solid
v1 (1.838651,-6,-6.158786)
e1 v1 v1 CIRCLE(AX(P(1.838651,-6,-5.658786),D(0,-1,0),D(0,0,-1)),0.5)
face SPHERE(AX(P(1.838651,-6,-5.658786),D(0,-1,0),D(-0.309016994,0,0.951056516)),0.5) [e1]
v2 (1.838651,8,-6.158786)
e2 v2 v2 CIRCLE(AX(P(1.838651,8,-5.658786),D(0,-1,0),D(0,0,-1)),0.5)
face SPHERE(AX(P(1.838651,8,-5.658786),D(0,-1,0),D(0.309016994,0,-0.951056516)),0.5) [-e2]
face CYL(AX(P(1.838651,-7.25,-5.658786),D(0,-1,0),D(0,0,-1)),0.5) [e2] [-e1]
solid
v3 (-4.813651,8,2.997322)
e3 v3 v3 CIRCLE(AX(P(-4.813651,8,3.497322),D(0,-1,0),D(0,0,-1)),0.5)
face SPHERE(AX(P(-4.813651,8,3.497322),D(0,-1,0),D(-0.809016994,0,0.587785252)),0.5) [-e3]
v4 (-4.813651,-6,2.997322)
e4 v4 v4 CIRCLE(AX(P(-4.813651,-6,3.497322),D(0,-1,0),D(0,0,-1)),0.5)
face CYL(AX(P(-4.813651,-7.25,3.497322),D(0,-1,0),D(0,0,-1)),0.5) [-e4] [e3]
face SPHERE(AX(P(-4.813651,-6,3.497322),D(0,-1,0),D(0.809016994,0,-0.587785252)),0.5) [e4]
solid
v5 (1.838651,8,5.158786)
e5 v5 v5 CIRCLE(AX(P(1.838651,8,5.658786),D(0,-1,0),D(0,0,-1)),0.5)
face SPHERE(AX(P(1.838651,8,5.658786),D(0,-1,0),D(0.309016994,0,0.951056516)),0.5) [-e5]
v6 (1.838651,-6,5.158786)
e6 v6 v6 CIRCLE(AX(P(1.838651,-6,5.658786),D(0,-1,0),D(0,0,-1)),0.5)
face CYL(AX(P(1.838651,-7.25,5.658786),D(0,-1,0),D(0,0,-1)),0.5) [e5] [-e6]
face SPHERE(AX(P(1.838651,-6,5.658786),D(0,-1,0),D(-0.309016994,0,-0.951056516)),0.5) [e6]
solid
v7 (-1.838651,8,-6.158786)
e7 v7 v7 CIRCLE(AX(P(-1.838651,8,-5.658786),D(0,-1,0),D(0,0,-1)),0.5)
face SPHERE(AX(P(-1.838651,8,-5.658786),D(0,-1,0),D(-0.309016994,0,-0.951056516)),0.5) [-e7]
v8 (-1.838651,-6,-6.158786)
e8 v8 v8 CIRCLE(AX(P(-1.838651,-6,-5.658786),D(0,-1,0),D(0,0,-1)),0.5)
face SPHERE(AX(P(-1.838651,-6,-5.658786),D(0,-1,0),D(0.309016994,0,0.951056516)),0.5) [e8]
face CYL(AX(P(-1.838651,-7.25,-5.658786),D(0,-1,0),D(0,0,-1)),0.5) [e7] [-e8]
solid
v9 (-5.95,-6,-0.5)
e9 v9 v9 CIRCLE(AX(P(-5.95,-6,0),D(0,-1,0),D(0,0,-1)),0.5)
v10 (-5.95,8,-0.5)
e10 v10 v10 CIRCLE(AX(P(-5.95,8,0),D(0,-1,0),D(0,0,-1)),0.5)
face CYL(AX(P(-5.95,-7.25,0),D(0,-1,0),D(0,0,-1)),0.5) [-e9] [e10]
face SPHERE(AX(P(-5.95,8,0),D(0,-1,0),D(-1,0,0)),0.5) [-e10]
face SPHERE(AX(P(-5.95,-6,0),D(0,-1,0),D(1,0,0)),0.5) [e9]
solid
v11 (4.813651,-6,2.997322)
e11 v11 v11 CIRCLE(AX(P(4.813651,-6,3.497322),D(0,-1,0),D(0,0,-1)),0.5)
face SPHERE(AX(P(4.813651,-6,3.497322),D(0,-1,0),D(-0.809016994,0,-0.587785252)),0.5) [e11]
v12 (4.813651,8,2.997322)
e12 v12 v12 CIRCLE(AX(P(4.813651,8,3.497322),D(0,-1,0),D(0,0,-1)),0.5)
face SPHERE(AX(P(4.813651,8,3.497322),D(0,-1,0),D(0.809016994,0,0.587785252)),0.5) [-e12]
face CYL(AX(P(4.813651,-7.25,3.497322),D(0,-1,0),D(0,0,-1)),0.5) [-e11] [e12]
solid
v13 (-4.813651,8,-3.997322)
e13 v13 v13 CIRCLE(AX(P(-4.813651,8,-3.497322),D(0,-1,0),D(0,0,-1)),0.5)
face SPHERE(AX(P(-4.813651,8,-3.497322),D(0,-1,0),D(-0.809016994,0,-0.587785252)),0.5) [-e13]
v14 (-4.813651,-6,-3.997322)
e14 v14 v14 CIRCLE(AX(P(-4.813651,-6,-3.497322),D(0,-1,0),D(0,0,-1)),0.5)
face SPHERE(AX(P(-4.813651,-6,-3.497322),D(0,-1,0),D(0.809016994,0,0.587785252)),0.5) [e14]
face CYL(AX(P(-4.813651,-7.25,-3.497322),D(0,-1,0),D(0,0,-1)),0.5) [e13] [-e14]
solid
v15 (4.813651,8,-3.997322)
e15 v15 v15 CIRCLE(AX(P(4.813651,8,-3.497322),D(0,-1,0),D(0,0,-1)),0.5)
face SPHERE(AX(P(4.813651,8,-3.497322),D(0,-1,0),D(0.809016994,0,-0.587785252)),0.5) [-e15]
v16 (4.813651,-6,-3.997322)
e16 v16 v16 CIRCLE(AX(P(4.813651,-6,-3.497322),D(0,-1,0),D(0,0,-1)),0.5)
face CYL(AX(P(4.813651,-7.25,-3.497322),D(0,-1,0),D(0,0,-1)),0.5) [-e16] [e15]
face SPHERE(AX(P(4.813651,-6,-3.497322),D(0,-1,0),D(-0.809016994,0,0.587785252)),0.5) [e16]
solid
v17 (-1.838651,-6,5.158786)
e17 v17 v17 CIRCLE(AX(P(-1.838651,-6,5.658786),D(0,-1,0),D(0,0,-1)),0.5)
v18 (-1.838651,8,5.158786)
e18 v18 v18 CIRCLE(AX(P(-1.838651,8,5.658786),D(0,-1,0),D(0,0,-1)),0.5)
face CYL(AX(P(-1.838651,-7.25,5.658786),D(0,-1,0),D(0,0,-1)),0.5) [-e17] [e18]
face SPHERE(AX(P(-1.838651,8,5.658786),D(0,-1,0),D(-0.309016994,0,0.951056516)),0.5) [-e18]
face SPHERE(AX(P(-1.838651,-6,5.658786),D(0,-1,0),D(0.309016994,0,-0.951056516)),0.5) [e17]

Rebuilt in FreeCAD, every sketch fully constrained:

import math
import FreeCAD as App
import Part
import Sketcher

doc = App.newDocument("Part")
body = doc.addObject("PartDesign::Body", "Body")

# Sketch on an angled plane
sketch1 = body.newObject("Sketcher::SketchObject", "Sketch")
sketch1.Placement = App.Placement(App.Vector(0, 0, 0), App.Rotation(App.Vector(0.809016994, 0, -0.587785252), App.Vector(0, 0.999999999, 0), App.Vector(0.587785252, 0, 0.809016994), "ZXY"))
sketch1.addGeometry([
    Part.LineSegment(App.Vector(6.45, -6, 0), App.Vector(6.45, 8, 0)),
    Part.ArcOfCircle(Part.Circle(App.Vector(5.95, 8, 0), App.Vector(0, 0, 1), 0.5), math.radians(0), math.radians(90)),
    Part.LineSegment(App.Vector(5.95, 8.5, 0), App.Vector(5.95, -6.5, 0)),
    Part.ArcOfCircle(Part.Circle(App.Vector(5.95, -6, 0), App.Vector(0, 0, 1), 0.5), math.radians(-90), math.radians(0)),
], False)
sketch1.addGeometry(Part.LineSegment(App.Vector(5.95, -6.5, 0), App.Vector(5.95, 8.5, 0)), True)  # axis
sketch1.addConstraint([
    Sketcher.Constraint("Tangent", 0, 2, 1, 1),
    Sketcher.Constraint("Coincident", 1, 2, 2, 1),
    Sketcher.Constraint("Coincident", 2, 2, 3, 1),
    Sketcher.Constraint("Tangent", 3, 2, 0, 1),
    Sketcher.Constraint("Vertical", 0),
    Sketcher.Constraint("Vertical", 2),
    Sketcher.Constraint("Vertical", 4),
    Sketcher.Constraint("Coincident", 4, 1, 2, 2),
    Sketcher.Constraint("Equal", 1, 3),
    Sketcher.Constraint("Vertical", 3, 3, 1, 2),
    Sketcher.Constraint("Equal", 2, 4),
    Sketcher.Constraint("Radius", 1, 0.5),
    Sketcher.Constraint("DistanceY", 0, 1, 0, 2, 14.0),
    Sketcher.Constraint("DistanceY", -1, 1, 1, 3, 8.0),
    Sketcher.Constraint("DistanceX", -1, 1, 1, 3, 5.95),
])
revolution = body.newObject("PartDesign::Revolution", "Revolution")
revolution.Profile = sketch1
revolution.ReferenceAxis = (sketch1, ["Axis0"])
revolution.Angle = 360
body2 = doc.addObject("PartDesign::Body", "Body001")

# Sketch on an angled plane
sketch2 = body2.newObject("Sketcher::SketchObject", "Sketch001")
sketch2.Placement = App.Placement(App.Vector(0, 0, 0), App.Rotation(App.Vector(0.309016994, 0, -0.951056516), App.Vector(0, 0.999999999, 0), App.Vector(0.951056516, 0, 0.309016994), "ZXY"))
sketch2.addGeometry([
    Part.LineSegment(App.Vector(6.45, -6, 0), App.Vector(6.45, 8, 0)),
    Part.ArcOfCircle(Part.Circle(App.Vector(5.95, 8, 0), App.Vector(0, 0, 1), 0.5), math.radians(0), math.radians(90)),
    Part.LineSegment(App.Vector(5.95, 8.5, 0), App.Vector(5.95, -6.5, 0)),
    Part.ArcOfCircle(Part.Circle(App.Vector(5.95, -6, 0), App.Vector(0, 0, 1), 0.5), math.radians(-90), math.radians(0)),
], False)
sketch2.addGeometry(Part.LineSegment(App.Vector(5.95, -6.5, 0), App.Vector(5.95, 8.5, 0)), True)  # axis
sketch2.addConstraint([
    Sketcher.Constraint("Tangent", 0, 2, 1, 1),
    Sketcher.Constraint("Coincident", 1, 2, 2, 1),
    Sketcher.Constraint("Coincident", 2, 2, 3, 1),
    Sketcher.Constraint("Tangent", 3, 2, 0, 1),
    Sketcher.Constraint("Vertical", 0),
    Sketcher.Constraint("Vertical", 2),
    Sketcher.Constraint("Vertical", 4),
    Sketcher.Constraint("Coincident", 4, 1, 2, 2),
    Sketcher.Constraint("Equal", 1, 3),
    Sketcher.Constraint("Vertical", 3, 3, 1, 2),
    Sketcher.Constraint("Equal", 2, 4),
    Sketcher.Constraint("Radius", 1, 0.5),
    Sketcher.Constraint("DistanceY", 0, 1, 0, 2, 14.0),
    Sketcher.Constraint("DistanceY", -1, 1, 1, 3, 8.0),
    Sketcher.Constraint("DistanceX", -1, 1, 1, 3, 5.95),
])
revolution2 = body2.newObject("PartDesign::Revolution", "Revolution001")
revolution2.Profile = sketch2
revolution2.ReferenceAxis = (sketch2, ["Axis0"])
revolution2.Angle = 360
body3 = doc.addObject("PartDesign::Body", "Body002")

# Sketch on an angled plane
sketch3 = body3.newObject("Sketcher::SketchObject", "Sketch002")
sketch3.Placement = App.Placement(App.Vector(0, 0, 0), App.Rotation(App.Vector(-0.309016994, 0, -0.951056516), App.Vector(0, 0.999999999, 0), App.Vector(0.951056516, 0, -0.309016994), "ZXY"))
sketch3.addGeometry([
    Part.LineSegment(App.Vector(6.45, -6, 0), App.Vector(6.45, 8, 0)),
    Part.ArcOfCircle(Part.Circle(App.Vector(5.95, 8, 0), App.Vector(0, 0, 1), 0.5), math.radians(0), math.radians(90)),
    Part.LineSegment(App.Vector(5.95, 8.5, 0), App.Vector(5.95, -6.5, 0)),
    Part.ArcOfCircle(Part.Circle(App.Vector(5.95, -6, 0), App.Vector(0, 0, 1), 0.5), math.radians(-90), math.radians(0)),
], False)
sketch3.addGeometry(Part.LineSegment(App.Vector(5.95, -6.5, 0), App.Vector(5.95, 8.5, 0)), True)  # axis
sketch3.addConstraint([
    Sketcher.Constraint("Tangent", 0, 2, 1, 1),
    Sketcher.Constraint("Coincident", 1, 2, 2, 1),
    Sketcher.Constraint("Coincident", 2, 2, 3, 1),
    Sketcher.Constraint("Tangent", 3, 2, 0, 1),
    Sketcher.Constraint("Vertical", 0),
    Sketcher.Constraint("Vertical", 2),
    Sketcher.Constraint("Vertical", 4),
    Sketcher.Constraint("Coincident", 4, 1, 2, 2),
    Sketcher.Constraint("Equal", 1, 3),
    Sketcher.Constraint("Vertical", 3, 3, 1, 2),
    Sketcher.Constraint("Equal", 2, 4),
    Sketcher.Constraint("Radius", 1, 0.5),
    Sketcher.Constraint("DistanceY", 0, 1, 0, 2, 14.0),
    Sketcher.Constraint("DistanceY", -1, 1, 1, 3, 8.0),
    Sketcher.Constraint("DistanceX", -1, 1, 1, 3, 5.95),
])
revolution3 = body3.newObject("PartDesign::Revolution", "Revolution002")
revolution3.Profile = sketch3
revolution3.ReferenceAxis = (sketch3, ["Axis0"])
revolution3.Angle = 360
body4 = doc.addObject("PartDesign::Body", "Body003")

# Sketch on an angled plane
sketch4 = body4.newObject("Sketcher::SketchObject", "Sketch003")
sketch4.Placement = App.Placement(App.Vector(0, 0, 0), App.Rotation(App.Vector(-0.809016994, 0, -0.587785252), App.Vector(0, 0.999999999, 0), App.Vector(0.587785252, 0, -0.809016994), "ZXY"))
sketch4.addGeometry([
    Part.LineSegment(App.Vector(6.45, -6, 0), App.Vector(6.45, 8, 0)),
    Part.ArcOfCircle(Part.Circle(App.Vector(5.95, 8, 0), App.Vector(0, 0, 1), 0.5), math.radians(0), math.radians(90)),
    Part.LineSegment(App.Vector(5.95, 8.5, 0), App.Vector(5.95, -6.5, 0)),
    Part.ArcOfCircle(Part.Circle(App.Vector(5.95, -6, 0), App.Vector(0, 0, 1), 0.5), math.radians(-90), math.radians(0)),
], False)
sketch4.addGeometry(Part.LineSegment(App.Vector(5.95, -6.5, 0), App.Vector(5.95, 8.5, 0)), True)  # axis
sketch4.addConstraint([
    Sketcher.Constraint("Tangent", 0, 2, 1, 1),
    Sketcher.Constraint("Coincident", 1, 2, 2, 1),
    Sketcher.Constraint("Coincident", 2, 2, 3, 1),
    Sketcher.Constraint("Tangent", 3, 2, 0, 1),
    Sketcher.Constraint("Vertical", 0),
    Sketcher.Constraint("Vertical", 2),
    Sketcher.Constraint("Vertical", 4),
    Sketcher.Constraint("Coincident", 4, 1, 2, 2),
    Sketcher.Constraint("Equal", 1, 3),
    Sketcher.Constraint("Vertical", 3, 3, 1, 2),
    Sketcher.Constraint("Equal", 2, 4),
    Sketcher.Constraint("Radius", 1, 0.5),
    Sketcher.Constraint("DistanceY", 0, 1, 0, 2, 14.0),
    Sketcher.Constraint("DistanceY", -1, 1, 1, 3, 8.0),
    Sketcher.Constraint("DistanceX", -1, 1, 1, 3, 5.95),
])
revolution4 = body4.newObject("PartDesign::Revolution", "Revolution003")
revolution4.Profile = sketch4
revolution4.ReferenceAxis = (sketch4, ["Axis0"])
revolution4.Angle = 360
body5 = doc.addObject("PartDesign::Body", "Body004")

# Sketch on XY plane
sketch5 = body5.newObject("Sketcher::SketchObject", "Sketch004")
sketch5.AttachmentSupport = (doc.getObject("XY_Plane004"), [""])
sketch5.MapMode = "FlatFace"
sketch5.addGeometry([
    Part.LineSegment(App.Vector(-6.45, -6, 0), App.Vector(-6.45, 8, 0)),
    Part.ArcOfCircle(Part.Circle(App.Vector(-5.95, 8, 0), App.Vector(0, 0, 1), 0.5), math.radians(90), math.radians(180)),
    Part.LineSegment(App.Vector(-5.95, 8.5, 0), App.Vector(-5.95, -6.5, 0)),
    Part.ArcOfCircle(Part.Circle(App.Vector(-5.95, -6, 0), App.Vector(0, 0, 1), 0.5), math.radians(180), math.radians(270)),
], False)
sketch5.addGeometry(Part.LineSegment(App.Vector(-5.95, -6.5, 0), App.Vector(-5.95, 8.5, 0)), True)  # axis
sketch5.addConstraint([
    Sketcher.Constraint("Tangent", 0, 2, 1, 2),
    Sketcher.Constraint("Coincident", 1, 1, 2, 1),
    Sketcher.Constraint("Coincident", 2, 2, 3, 2),
    Sketcher.Constraint("Tangent", 3, 1, 0, 1),
    Sketcher.Constraint("Vertical", 0),
    Sketcher.Constraint("Vertical", 2),
    Sketcher.Constraint("Vertical", 4),
    Sketcher.Constraint("Coincident", 4, 1, 2, 2),
    Sketcher.Constraint("Equal", 1, 3),
    Sketcher.Constraint("Vertical", 3, 3, 1, 1),
    Sketcher.Constraint("Equal", 2, 4),
    Sketcher.Constraint("Radius", 1, 0.5),
    Sketcher.Constraint("DistanceY", 0, 1, 0, 2, 14.0),
    Sketcher.Constraint("DistanceY", -1, 1, 1, 3, 8.0),
    Sketcher.Constraint("DistanceX", 1, 3, -1, 1, 5.95),
])
revolution5 = body5.newObject("PartDesign::Revolution", "Revolution004")
revolution5.Profile = sketch5
revolution5.ReferenceAxis = (sketch5, ["Axis0"])
revolution5.Angle = 360
body6 = doc.addObject("PartDesign::Body", "Body005")

# Sketch on an angled plane
sketch6 = body6.newObject("Sketcher::SketchObject", "Sketch005")
sketch6.Placement = App.Placement(App.Vector(0, 0, 0), App.Rotation(App.Vector(-0.809016994, 0, 0.587785252), App.Vector(0, 0.999999999, 0), App.Vector(-0.587785252, 0, -0.809016994), "ZXY"))
sketch6.addGeometry([
    Part.LineSegment(App.Vector(6.45, -6, 0), App.Vector(6.45, 8, 0)),
    Part.ArcOfCircle(Part.Circle(App.Vector(5.95, 8, 0), App.Vector(0, 0, 1), 0.5), math.radians(0), math.radians(90)),
    Part.LineSegment(App.Vector(5.95, 8.5, 0), App.Vector(5.95, -6.5, 0)),
    Part.ArcOfCircle(Part.Circle(App.Vector(5.95, -6, 0), App.Vector(0, 0, 1), 0.5), math.radians(-90), math.radians(0)),
], False)
sketch6.addGeometry(Part.LineSegment(App.Vector(5.95, -6.5, 0), App.Vector(5.95, 8.5, 0)), True)  # axis
sketch6.addConstraint([
    Sketcher.Constraint("Tangent", 0, 2, 1, 1),
    Sketcher.Constraint("Coincident", 1, 2, 2, 1),
    Sketcher.Constraint("Coincident", 2, 2, 3, 1),
    Sketcher.Constraint("Tangent", 3, 2, 0, 1),
    Sketcher.Constraint("Vertical", 0),
    Sketcher.Constraint("Vertical", 2),
    Sketcher.Constraint("Vertical", 4),
    Sketcher.Constraint("Coincident", 4, 1, 2, 2),
    Sketcher.Constraint("Equal", 1, 3),
    Sketcher.Constraint("Vertical", 3, 3, 1, 2),
    Sketcher.Constraint("Equal", 2, 4),
    Sketcher.Constraint("Radius", 1, 0.5),
    Sketcher.Constraint("DistanceY", 0, 1, 0, 2, 14.0),
    Sketcher.Constraint("DistanceY", -1, 1, 1, 3, 8.0),
    Sketcher.Constraint("DistanceX", -1, 1, 1, 3, 5.95),
])
revolution6 = body6.newObject("PartDesign::Revolution", "Revolution005")
revolution6.Profile = sketch6
revolution6.ReferenceAxis = (sketch6, ["Axis0"])
revolution6.Angle = 360
body7 = doc.addObject("PartDesign::Body", "Body006")

# Sketch on an angled plane
sketch7 = body7.newObject("Sketcher::SketchObject", "Sketch006")
sketch7.Placement = App.Placement(App.Vector(0, 0, 0), App.Rotation(App.Vector(-0.309016994, 0, 0.951056516), App.Vector(0, 0.999999999, 0), App.Vector(-0.951056516, 0, -0.309016994), "ZXY"))
sketch7.addGeometry([
    Part.LineSegment(App.Vector(6.45, -6, 0), App.Vector(6.45, 8, 0)),
    Part.ArcOfCircle(Part.Circle(App.Vector(5.95, 8, 0), App.Vector(0, 0, 1), 0.5), math.radians(0), math.radians(90)),
    Part.LineSegment(App.Vector(5.95, 8.5, 0), App.Vector(5.95, -6.5, 0)),
    Part.ArcOfCircle(Part.Circle(App.Vector(5.95, -6, 0), App.Vector(0, 0, 1), 0.5), math.radians(-90), math.radians(0)),
], False)
sketch7.addGeometry(Part.LineSegment(App.Vector(5.95, -6.5, 0), App.Vector(5.95, 8.5, 0)), True)  # axis
sketch7.addConstraint([
    Sketcher.Constraint("Tangent", 0, 2, 1, 1),
    Sketcher.Constraint("Coincident", 1, 2, 2, 1),
    Sketcher.Constraint("Coincident", 2, 2, 3, 1),
    Sketcher.Constraint("Tangent", 3, 2, 0, 1),
    Sketcher.Constraint("Vertical", 0),
    Sketcher.Constraint("Vertical", 2),
    Sketcher.Constraint("Vertical", 4),
    Sketcher.Constraint("Coincident", 4, 1, 2, 2),
    Sketcher.Constraint("Equal", 1, 3),
    Sketcher.Constraint("Vertical", 3, 3, 1, 2),
    Sketcher.Constraint("Equal", 2, 4),
    Sketcher.Constraint("Radius", 1, 0.5),
    Sketcher.Constraint("DistanceY", 0, 1, 0, 2, 14.0),
    Sketcher.Constraint("DistanceY", -1, 1, 1, 3, 8.0),
    Sketcher.Constraint("DistanceX", -1, 1, 1, 3, 5.95),
])
revolution7 = body7.newObject("PartDesign::Revolution", "Revolution006")
revolution7.Profile = sketch7
revolution7.ReferenceAxis = (sketch7, ["Axis0"])
revolution7.Angle = 360
body8 = doc.addObject("PartDesign::Body", "Body007")

# Sketch on an angled plane
sketch8 = body8.newObject("Sketcher::SketchObject", "Sketch007")
sketch8.Placement = App.Placement(App.Vector(0, 0, 0), App.Rotation(App.Vector(0.309016994, 0, 0.951056516), App.Vector(0, 0.999999999, 0), App.Vector(-0.951056516, 0, 0.309016994), "ZXY"))
sketch8.addGeometry([
    Part.LineSegment(App.Vector(6.45, -6, 0), App.Vector(6.45, 8, 0)),
    Part.ArcOfCircle(Part.Circle(App.Vector(5.95, 8, 0), App.Vector(0, 0, 1), 0.5), math.radians(0), math.radians(90)),
    Part.LineSegment(App.Vector(5.95, 8.5, 0), App.Vector(5.95, -6.5, 0)),
    Part.ArcOfCircle(Part.Circle(App.Vector(5.95, -6, 0), App.Vector(0, 0, 1), 0.5), math.radians(-90), math.radians(0)),
], False)
sketch8.addGeometry(Part.LineSegment(App.Vector(5.95, -6.5, 0), App.Vector(5.95, 8.5, 0)), True)  # axis
sketch8.addConstraint([
    Sketcher.Constraint("Tangent", 0, 2, 1, 1),
    Sketcher.Constraint("Coincident", 1, 2, 2, 1),
    Sketcher.Constraint("Coincident", 2, 2, 3, 1),
    Sketcher.Constraint("Tangent", 3, 2, 0, 1),
    Sketcher.Constraint("Vertical", 0),
    Sketcher.Constraint("Vertical", 2),
    Sketcher.Constraint("Vertical", 4),
    Sketcher.Constraint("Coincident", 4, 1, 2, 2),
    Sketcher.Constraint("Equal", 1, 3),
    Sketcher.Constraint("Vertical", 3, 3, 1, 2),
    Sketcher.Constraint("Equal", 2, 4),
    Sketcher.Constraint("Radius", 1, 0.5),
    Sketcher.Constraint("DistanceY", 0, 1, 0, 2, 14.0),
    Sketcher.Constraint("DistanceY", -1, 1, 1, 3, 8.0),
    Sketcher.Constraint("DistanceX", -1, 1, 1, 3, 5.95),
])
revolution8 = body8.newObject("PartDesign::Revolution", "Revolution007")
revolution8.Profile = sketch8
revolution8.ReferenceAxis = (sketch8, ["Axis0"])
revolution8.Angle = 360
body9 = doc.addObject("PartDesign::Body", "Body008")

# Sketch on an angled plane
sketch9 = body9.newObject("Sketcher::SketchObject", "Sketch008")
sketch9.Placement = App.Placement(App.Vector(0, 0, 0), App.Rotation(App.Vector(0.809016994, 0, 0.587785252), App.Vector(0, 0.999999999, 0), App.Vector(-0.587785252, 0, 0.809016994), "ZXY"))
sketch9.addGeometry([
    Part.LineSegment(App.Vector(6.45, -6, 0), App.Vector(6.45, 8, 0)),
    Part.ArcOfCircle(Part.Circle(App.Vector(5.95, 8, 0), App.Vector(0, 0, 1), 0.5), math.radians(0), math.radians(90)),
    Part.LineSegment(App.Vector(5.95, 8.5, 0), App.Vector(5.95, -6.5, 0)),
    Part.ArcOfCircle(Part.Circle(App.Vector(5.95, -6, 0), App.Vector(0, 0, 1), 0.5), math.radians(-90), math.radians(0)),
], False)
sketch9.addGeometry(Part.LineSegment(App.Vector(5.95, -6.5, 0), App.Vector(5.95, 8.5, 0)), True)  # axis
sketch9.addConstraint([
    Sketcher.Constraint("Tangent", 0, 2, 1, 1),
    Sketcher.Constraint("Coincident", 1, 2, 2, 1),
    Sketcher.Constraint("Coincident", 2, 2, 3, 1),
    Sketcher.Constraint("Tangent", 3, 2, 0, 1),
    Sketcher.Constraint("Vertical", 0),
    Sketcher.Constraint("Vertical", 2),
    Sketcher.Constraint("Vertical", 4),
    Sketcher.Constraint("Coincident", 4, 1, 2, 2),
    Sketcher.Constraint("Equal", 1, 3),
    Sketcher.Constraint("Vertical", 3, 3, 1, 2),
    Sketcher.Constraint("Equal", 2, 4),
    Sketcher.Constraint("Radius", 1, 0.5),
    Sketcher.Constraint("DistanceY", 0, 1, 0, 2, 14.0),
    Sketcher.Constraint("DistanceY", -1, 1, 1, 3, 8.0),
    Sketcher.Constraint("DistanceX", -1, 1, 1, 3, 5.95),
])
revolution9 = body9.newObject("PartDesign::Revolution", "Revolution008")
revolution9.Profile = sketch9
revolution9.ReferenceAxis = (sketch9, ["Axis0"])
revolution9.Angle = 360

doc.recompute()
